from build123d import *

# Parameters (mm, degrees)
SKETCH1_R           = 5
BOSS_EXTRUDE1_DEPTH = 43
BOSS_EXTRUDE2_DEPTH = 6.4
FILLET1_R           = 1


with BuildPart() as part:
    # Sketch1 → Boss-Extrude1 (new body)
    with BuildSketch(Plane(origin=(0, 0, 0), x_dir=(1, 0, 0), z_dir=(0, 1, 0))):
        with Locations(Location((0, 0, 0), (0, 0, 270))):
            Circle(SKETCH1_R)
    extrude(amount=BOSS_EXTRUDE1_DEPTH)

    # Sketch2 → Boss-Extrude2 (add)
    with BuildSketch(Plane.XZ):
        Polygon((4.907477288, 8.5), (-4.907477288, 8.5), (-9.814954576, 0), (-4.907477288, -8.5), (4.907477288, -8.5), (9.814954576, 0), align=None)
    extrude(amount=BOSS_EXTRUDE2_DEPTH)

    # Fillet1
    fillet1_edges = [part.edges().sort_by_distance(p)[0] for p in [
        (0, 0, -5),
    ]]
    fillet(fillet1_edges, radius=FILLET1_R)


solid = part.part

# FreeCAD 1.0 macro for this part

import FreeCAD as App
import Part
import Sketcher
Q = App.Units.Quantity


def edges_at(feature, points):
    """Names of the edges that pass closest to the given points."""
    edges = feature.Shape.Edges
    near = lambda p: min(range(len(edges)), key=lambda i: edges[i].distToShape(Part.Vertex(*p))[0])
    return sorted({f"Edge{near(p) + 1}" for p in points})

doc = App.newDocument("Part")
body = doc.addObject("PartDesign::Body", "Body")

sketch1 = body.newObject("Sketcher::SketchObject", "Sketch")
sketch1.AttachmentSupport = (doc.getObject("XZ_Plane"), [""])
sketch1.MapMode = "FlatFace"
sketch1.addGeometry(Part.Circle(App.Vector(0, 0, 0), App.Vector(0, 0, 1), 5), False)
sketch1.addConstraint(Sketcher.Constraint("Coincident", 0, 3, -1, 1))
sketch1.addConstraint(Sketcher.Constraint("Diameter", 0, 10.0))
pad1 = body.newObject("PartDesign::Pad", "Pad")
pad1.Profile = sketch1
pad1.Length = 43
pad1.Reversed = True

sketch2 = body.newObject("Sketcher::SketchObject", "Sketch001")
sketch2.AttachmentSupport = (doc.getObject("XZ_Plane"), [""])
sketch2.MapMode = "FlatFace"
sketch2.addGeometry(Part.LineSegment(App.Vector(5, 8, 0), App.Vector(-5, 8, 0)), False)
sketch2.addGeometry(Part.LineSegment(App.Vector(-5, 8, 0), App.Vector(-10, 0, 0)), False)
sketch2.addGeometry(Part.LineSegment(App.Vector(-10, 0, 0), App.Vector(-5, -8, 0)), False)
sketch2.addGeometry(Part.LineSegment(App.Vector(-5, -8, 0), App.Vector(5, -8, 0)), False)
sketch2.addGeometry(Part.LineSegment(App.Vector(5, -8, 0), App.Vector(10, 0, 0)), False)
sketch2.addGeometry(Part.LineSegment(App.Vector(10, 0, 0), App.Vector(5, 8, 0)), False)
sketch2.addConstraint(Sketcher.Constraint("Coincident", 0, 2, 1, 1))
sketch2.addConstraint(Sketcher.Constraint("Coincident", 1, 2, 2, 1))
sketch2.addConstraint(Sketcher.Constraint("Coincident", 2, 2, 3, 1))
sketch2.addConstraint(Sketcher.Constraint("Coincident", 3, 2, 4, 1))
sketch2.addConstraint(Sketcher.Constraint("Coincident", 4, 2, 5, 1))
sketch2.addConstraint(Sketcher.Constraint("Coincident", 5, 2, 0, 1))
sketch2.addConstraint(Sketcher.Constraint("Horizontal", 0))
sketch2.addConstraint(Sketcher.Constraint("Horizontal", 3))
sketch2.addConstraint(Sketcher.Constraint("Symmetric", 0, 2, 3, 2, -1, 1))
sketch2.addConstraint(Sketcher.Constraint("Symmetric", 1, 2, 4, 2, -1, 1))
sketch2.addConstraint(Sketcher.Constraint("PointOnObject", 1, 2, -1))
sketch2.addConstraint(Sketcher.Constraint("Parallel", 2, 5))
sketch2.addConstraint(Sketcher.Constraint("Vertical", 0, 2, 2, 2))
sketch2.addConstraint(Sketcher.Constraint("Angle", 1, Q("-120 deg")))
sketch2.addConstraint(Sketcher.Constraint("DistanceY", 2, 2, 0, 2, 17.0))
sketch2.addConstraint(Sketcher.Constraint("DistanceX", 0, 2, 0, 1, 9.814955))
pad2 = body.newObject("PartDesign::Pad", "Pad001")
pad2.Profile = sketch2
pad2.Length = 6.4
doc.recompute()

fillet = body.newObject("PartDesign::Fillet", "Fillet")
fillet.Base = (pad2, edges_at(pad2, [(0, 0, -5)]))
fillet.Radius = 1

doc.recompute()
